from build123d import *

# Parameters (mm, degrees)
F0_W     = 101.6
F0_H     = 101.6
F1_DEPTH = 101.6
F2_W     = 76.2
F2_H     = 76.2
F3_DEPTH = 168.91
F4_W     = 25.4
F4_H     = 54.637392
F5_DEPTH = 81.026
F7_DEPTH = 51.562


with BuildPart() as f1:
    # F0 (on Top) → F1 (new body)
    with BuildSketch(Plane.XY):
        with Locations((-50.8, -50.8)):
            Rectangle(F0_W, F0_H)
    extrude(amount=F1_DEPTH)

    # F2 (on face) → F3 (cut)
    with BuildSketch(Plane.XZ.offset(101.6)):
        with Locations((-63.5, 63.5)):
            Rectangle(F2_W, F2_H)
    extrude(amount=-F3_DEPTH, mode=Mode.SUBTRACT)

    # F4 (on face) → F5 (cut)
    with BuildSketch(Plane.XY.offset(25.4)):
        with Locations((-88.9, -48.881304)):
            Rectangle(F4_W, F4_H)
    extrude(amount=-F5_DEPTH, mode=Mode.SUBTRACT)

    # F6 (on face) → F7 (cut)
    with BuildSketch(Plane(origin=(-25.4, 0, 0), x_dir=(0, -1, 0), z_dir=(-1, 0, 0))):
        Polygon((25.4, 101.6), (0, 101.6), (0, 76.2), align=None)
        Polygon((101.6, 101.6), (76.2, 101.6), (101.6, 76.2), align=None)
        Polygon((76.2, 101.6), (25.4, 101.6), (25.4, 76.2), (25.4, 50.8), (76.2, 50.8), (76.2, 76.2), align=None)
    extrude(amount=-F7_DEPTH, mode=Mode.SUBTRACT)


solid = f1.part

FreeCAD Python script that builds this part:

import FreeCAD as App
import Part
import Sketcher
from FreeCAD import Vector
Q = App.Units.Quantity


def add_polygon(sketch, points):
    """Adds a closed chain of lines whose ends are joined by coincident constraints."""
    first, n = sketch.GeometryCount, len(points)
    for a, b in zip(points, points[1:] + points[:1]):
        sketch.addGeometry(Part.LineSegment(App.Vector(*a, 0), App.Vector(*b, 0)), False)
    for i in range(n):
        sketch.addConstraint(Sketcher.Constraint("Coincident", first + i, 2, first + (i + 1) % n, 1))

doc = App.newDocument("Part")
body = doc.addObject("PartDesign::Body", "Body")

sketch1 = body.newObject("Sketcher::SketchObject", "Sketch")
sketch1.AttachmentSupport = (doc.getObject("XY_Plane"), [""])
sketch1.MapMode = "FlatFace"
add_polygon(sketch1, [(-102, 0), (-102, -102), (0, -102), (0, 0)])
sketch1.addConstraint([
    Sketcher.Constraint("Vertical", 0),
    Sketcher.Constraint("Horizontal", 1),
    Sketcher.Constraint("Vertical", 2),
    Sketcher.Constraint("Horizontal", 3),
    Sketcher.Constraint("Coincident", 2, 2, -1, 1),
    Sketcher.Constraint("Equal", 3, 0),
    Sketcher.Constraint("DistanceX", 1, 1, 1, 2, Q("4 in")),
])
pad1 = body.newObject("PartDesign::Pad", "Pad")
pad1.Profile = sketch1
pad1.Length = Q("4 in")

sketch2 = body.newObject("Sketcher::SketchObject", "Sketch001")
sketch2.AttachmentSupport = (doc.getObject("XZ_Plane"), [""])
sketch2.MapMode = "FlatFace"
sketch2.AttachmentOffset = App.Placement(Vector(0, 0, 4 * 25.4), App.Rotation())
add_polygon(sketch2, [(-102, 102), (-102, 25), (-25, 25), (-25, 102)])
sketch2.addConstraint([
    Sketcher.Constraint("Vertical", 0),
    Sketcher.Constraint("Horizontal", 1),
    Sketcher.Constraint("Vertical", 2),
    Sketcher.Constraint("Horizontal", 3),
    Sketcher.Constraint("Equal", 3, 0),
    Sketcher.Constraint("DistanceX", 1, 1, 1, 2, Q("3 in")),
    Sketcher.Constraint("DistanceX", 0, 2, -1, 1, Q("4 in")),
    Sketcher.Constraint("DistanceY", -1, 1, 0, 2, Q("1 in")),
])
pocket1 = body.newObject("PartDesign::Pocket", "Pocket")
pocket1.Profile = sketch2
pocket1.Length = Q("6.65 in")

sketch3 = body.newObject("Sketcher::SketchObject", "Sketch002")
sketch3.AttachmentSupport = (doc.getObject("XY_Plane"), [""])
sketch3.MapMode = "FlatFace"
sketch3.AttachmentOffset = App.Placement(Vector(0, 0, 1 * 25.4), App.Rotation())
add_polygon(sketch3, [(-102, -22), (-102, -76), (-76, -76), (-76, -22)])
sketch3.addConstraint([
    Sketcher.Constraint("Vertical", 0),
    Sketcher.Constraint("Horizontal", 1),
    Sketcher.Constraint("Vertical", 2),
    Sketcher.Constraint("Horizontal", 3),
    Sketcher.Constraint("DistanceX", 1, 1, 1, 2, Q("1 in")),
    Sketcher.Constraint("DistanceX", 0, 2, -1, 1, Q("4 in")),
    Sketcher.Constraint("DistanceY", 0, 2, -1, 1, Q("3 in")),
    Sketcher.Constraint("DistanceY", 0, 2, 0, 1, 54.637392),
])
pocket2 = body.newObject("PartDesign::Pocket", "Pocket001")
pocket2.Profile = sketch3
pocket2.Length = Q("3.19 in")

sketch4 = body.newObject("Sketcher::SketchObject", "Sketch003")
sketch4.AttachmentSupport = (doc.getObject("YZ_Plane"), [""])
sketch4.MapMode = "FlatFace"
sketch4.AttachmentOffset = App.Placement(Vector(0, 0, -1 * 25.4), App.Rotation())
add_polygon(sketch4, [(-25, 102), (0, 102), (0, 76)])
add_polygon(sketch4, [(-102, 102), (-76, 102), (-102, 76)])
add_polygon(sketch4, [(-76, 102), (-25, 102), (-25, 51), (-76, 51)])
sketch4.addConstraint([
    Sketcher.Constraint("Horizontal", 0),
    Sketcher.Constraint("Vertical", 1),
    Sketcher.Constraint("Horizontal", 3),
    Sketcher.Constraint("Vertical", 5),
    Sketcher.Constraint("Horizontal", 6),
    Sketcher.Constraint("Vertical", 7),
    Sketcher.Constraint("Horizontal", 8),
    Sketcher.Constraint("Vertical", 9),
    Sketcher.Constraint("Coincident", 6, 2, 2, 2),
    Sketcher.Constraint("Coincident", 9, 2, 3, 2),
    Sketcher.Constraint("PointOnObject", 0, 2, -2),
    Sketcher.Constraint("Perpendicular", 2, 4),
    Sketcher.Constraint("Horizontal", 1, 2, 4, 2),
    Sketcher.Constraint("Equal", 0, 3),
    Sketcher.Constraint("Equal", 8, 7),
    Sketcher.Constraint("DistanceX", 0, 1, 0, 2, Q("1 in")),
    Sketcher.Constraint("DistanceX", 6, 1, 6, 2, Q("2 in")),
    Sketcher.Constraint("DistanceY", -1, 1, 0, 2, Q("4 in")),
])
pocket3 = body.newObject("PartDesign::Pocket", "Pocket002")
pocket3.Profile = sketch4
pocket3.Length = Q("2.03 in")
pocket3.Reversed = True

doc.recompute()
